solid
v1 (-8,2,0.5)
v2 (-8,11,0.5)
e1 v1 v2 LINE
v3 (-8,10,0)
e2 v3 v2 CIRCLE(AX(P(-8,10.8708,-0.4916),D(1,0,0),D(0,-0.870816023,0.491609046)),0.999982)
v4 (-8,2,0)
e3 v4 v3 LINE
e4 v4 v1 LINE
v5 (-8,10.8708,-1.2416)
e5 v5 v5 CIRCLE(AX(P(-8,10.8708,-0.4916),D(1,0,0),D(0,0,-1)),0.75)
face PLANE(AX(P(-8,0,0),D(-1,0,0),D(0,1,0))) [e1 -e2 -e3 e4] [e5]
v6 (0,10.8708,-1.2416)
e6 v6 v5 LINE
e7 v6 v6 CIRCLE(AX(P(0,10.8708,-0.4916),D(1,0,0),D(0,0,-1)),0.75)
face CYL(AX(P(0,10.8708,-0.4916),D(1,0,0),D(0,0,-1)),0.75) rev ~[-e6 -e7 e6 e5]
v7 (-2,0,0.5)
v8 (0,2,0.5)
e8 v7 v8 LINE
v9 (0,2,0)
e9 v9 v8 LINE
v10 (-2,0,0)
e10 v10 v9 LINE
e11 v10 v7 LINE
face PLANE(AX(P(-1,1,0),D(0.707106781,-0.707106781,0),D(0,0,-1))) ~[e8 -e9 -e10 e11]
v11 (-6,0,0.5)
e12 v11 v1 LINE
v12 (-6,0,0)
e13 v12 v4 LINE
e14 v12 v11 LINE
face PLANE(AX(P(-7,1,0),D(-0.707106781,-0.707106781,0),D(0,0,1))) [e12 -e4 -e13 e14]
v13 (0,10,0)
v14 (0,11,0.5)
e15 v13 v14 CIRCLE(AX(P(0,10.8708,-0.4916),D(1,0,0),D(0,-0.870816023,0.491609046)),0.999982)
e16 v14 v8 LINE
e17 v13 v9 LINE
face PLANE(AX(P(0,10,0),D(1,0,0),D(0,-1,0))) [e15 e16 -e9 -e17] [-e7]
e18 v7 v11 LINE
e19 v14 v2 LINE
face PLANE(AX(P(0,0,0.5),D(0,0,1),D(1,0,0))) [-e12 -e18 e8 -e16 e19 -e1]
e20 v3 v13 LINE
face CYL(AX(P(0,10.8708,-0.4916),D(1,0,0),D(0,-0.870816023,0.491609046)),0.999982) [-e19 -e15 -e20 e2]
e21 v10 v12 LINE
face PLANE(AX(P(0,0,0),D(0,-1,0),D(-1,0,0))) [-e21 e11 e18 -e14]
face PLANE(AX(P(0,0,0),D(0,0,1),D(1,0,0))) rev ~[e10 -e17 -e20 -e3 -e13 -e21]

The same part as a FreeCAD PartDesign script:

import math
import FreeCAD as App
import Part
import Sketcher
from FreeCAD import Vector


def edges_at(feature, points):
    """Names of the edges that pass closest to the given points."""
    edges = feature.Shape.Edges
    near = lambda p: min(range(len(edges)), key=lambda i: edges[i].distToShape(Part.Vertex(*p))[0])
    return sorted({f"Edge{near(p) + 1}" for p in points})

doc = App.newDocument("Part")
params = doc.addObject("Spreadsheet::Sheet", "Params")
for row, (alias, value) in enumerate([
    ("sketch1_width", "8 mm"),
    ("sketch1_height", "10 mm"),
    ("pad1_length", "0.5 mm"),
    ("sketch2_radius", "1 mm"),
    ("sketch2_width", "1 mm"),
    ("sketch2_height", "0.5 mm"),
    ("pad2_length", "8 mm"),
    ("sketch3_diameter", "1.5 mm"),
    ("pocket1_length", "8 mm"),
    ("chamfer_size", "2 mm"),
], start=1):
    params.set(f"A{row}", alias)
    params.set(f"B{row}", "=" + value)
    params.setAlias(f"B{row}", alias)

body = doc.addObject("PartDesign::Body", "Body")

# Sketch on XY plane
sketch1 = doc.addObject("Sketcher::SketchObject", "Sketch")
body.addObject(sketch1)
sketch1.AttachmentSupport = (doc.XY_Plane, [""])
sketch1.MapMode = "FlatFace"
sketch1.addGeometry([
    Part.LineSegment(Vector(-8, 0, 0), Vector(0, 0, 0)),
    Part.LineSegment(Vector(0, 0, 0), Vector(0, 10, 0)),
    Part.LineSegment(Vector(0, 10, 0), Vector(-8, 10, 0)),
    Part.LineSegment(Vector(-8, 10, 0), Vector(-8, 0, 0)),
], False)
sketch1.addConstraint([
    Sketcher.Constraint("Coincident", 0, 2, 1, 1),
    Sketcher.Constraint("Coincident", 1, 2, 2, 1),
    Sketcher.Constraint("Coincident", 2, 2, 3, 1),
    Sketcher.Constraint("Coincident", 3, 2, 0, 1),
    Sketcher.Constraint("Horizontal", 0),
    Sketcher.Constraint("Vertical", 1),
    Sketcher.Constraint("Horizontal", 2),
    Sketcher.Constraint("Vertical", 3),
    Sketcher.Constraint("Coincident", 0, 2, -1, 1),
    Sketcher.Constraint("DistanceX", 0, 1, 0, 2, 8.0),
    Sketcher.Constraint("DistanceY", 1, 1, 1, 2, 10.0),
])
sketch1.setExpression("Constraints[9]", "Params.sketch1_width")
sketch1.setExpression("Constraints[10]", "Params.sketch1_height")
pad1 = doc.addObject("PartDesign::Pad", "Pad")
body.addObject(pad1)
pad1.Profile = sketch1
pad1.setExpression("Length", "Params.pad1_length")

# Sketch on YZ plane
sketch2 = doc.addObject("Sketcher::SketchObject", "Sketch001")
body.addObject(sketch2)
sketch2.AttachmentSupport = (doc.YZ_Plane, [""])
sketch2.MapMode = "FlatFace"
sketch2.addGeometry([
    Part.LineSegment(Vector(11, 0.5, 0), Vector(10, 0.5, 0)),
    Part.LineSegment(Vector(10, 0.5, 0), Vector(10, 0, 0)),
    Part.ArcOfCircle(Part.Circle(Vector(10.8708, -0.4916, 0), Vector(0, 0, 1), 0.999982), math.radians(150.553606), math.radians(442.576497)),
], False)
sketch2.addConstraint([
    Sketcher.Constraint("Coincident", 0, 2, 1, 1),
    Sketcher.Constraint("Coincident", 1, 2, 2, 1),
    Sketcher.Constraint("Coincident", 2, 2, 0, 1),
    Sketcher.Constraint("Horizontal", 0),
    Sketcher.Constraint("Vertical", 1),
    Sketcher.Constraint("PointOnObject", 1, 2, -1),
    Sketcher.Constraint("Radius", 2, 1.0),
    Sketcher.Constraint("DistanceX", 0, 2, 0, 1, 1.0),
    Sketcher.Constraint("DistanceY", 1, 2, 1, 1, 0.5),
    Sketcher.Constraint("DistanceX", -1, 1, 0, 2, 10.0),
])
sketch2.setExpression("Constraints[6]", "Params.sketch2_radius")
sketch2.setExpression("Constraints[7]", "Params.sketch2_width")
sketch2.setExpression("Constraints[8]", "Params.sketch2_height")
pad2 = doc.addObject("PartDesign::Pad", "Pad001")
body.addObject(pad2)
pad2.Profile = sketch2
pad2.setExpression("Length", "Params.pad2_length")
pad2.Reversed = True

# Sketch on YZ plane
sketch3 = doc.addObject("Sketcher::SketchObject", "Sketch002")
body.addObject(sketch3)
sketch3.AttachmentSupport = (doc.YZ_Plane, [""])
sketch3.MapMode = "FlatFace"
sketch3.addGeometry(Part.Circle(Vector(10.8708, -0.4916, 0), Vector(0, 0, 1), 0.75), False)
sketch3.addConstraint([
    Sketcher.Constraint("Diameter", 0, 1.5),
    Sketcher.Constraint("DistanceX", -1, 1, 0, 3, 10.8708),
    Sketcher.Constraint("DistanceY", 0, 3, -1, 1, 0.4916),
])
sketch3.setExpression("Constraints[0]", "Params.sketch3_diameter")
pocket1 = doc.addObject("PartDesign::Pocket", "Pocket")
body.addObject(pocket1)
pocket1.Profile = sketch3
pocket1.setExpression("Length", "Params.pocket1_length")
doc.recompute()

chamfer = doc.addObject("PartDesign::Chamfer", "Chamfer")
body.addObject(chamfer)
chamfer.Base = (pocket1, edges_at(pocket1, [(-8, 0, 0.25), (0, 0, 0.25)]))
chamfer.setExpression("Size", "Params.chamfer_size")

doc.recompute()
